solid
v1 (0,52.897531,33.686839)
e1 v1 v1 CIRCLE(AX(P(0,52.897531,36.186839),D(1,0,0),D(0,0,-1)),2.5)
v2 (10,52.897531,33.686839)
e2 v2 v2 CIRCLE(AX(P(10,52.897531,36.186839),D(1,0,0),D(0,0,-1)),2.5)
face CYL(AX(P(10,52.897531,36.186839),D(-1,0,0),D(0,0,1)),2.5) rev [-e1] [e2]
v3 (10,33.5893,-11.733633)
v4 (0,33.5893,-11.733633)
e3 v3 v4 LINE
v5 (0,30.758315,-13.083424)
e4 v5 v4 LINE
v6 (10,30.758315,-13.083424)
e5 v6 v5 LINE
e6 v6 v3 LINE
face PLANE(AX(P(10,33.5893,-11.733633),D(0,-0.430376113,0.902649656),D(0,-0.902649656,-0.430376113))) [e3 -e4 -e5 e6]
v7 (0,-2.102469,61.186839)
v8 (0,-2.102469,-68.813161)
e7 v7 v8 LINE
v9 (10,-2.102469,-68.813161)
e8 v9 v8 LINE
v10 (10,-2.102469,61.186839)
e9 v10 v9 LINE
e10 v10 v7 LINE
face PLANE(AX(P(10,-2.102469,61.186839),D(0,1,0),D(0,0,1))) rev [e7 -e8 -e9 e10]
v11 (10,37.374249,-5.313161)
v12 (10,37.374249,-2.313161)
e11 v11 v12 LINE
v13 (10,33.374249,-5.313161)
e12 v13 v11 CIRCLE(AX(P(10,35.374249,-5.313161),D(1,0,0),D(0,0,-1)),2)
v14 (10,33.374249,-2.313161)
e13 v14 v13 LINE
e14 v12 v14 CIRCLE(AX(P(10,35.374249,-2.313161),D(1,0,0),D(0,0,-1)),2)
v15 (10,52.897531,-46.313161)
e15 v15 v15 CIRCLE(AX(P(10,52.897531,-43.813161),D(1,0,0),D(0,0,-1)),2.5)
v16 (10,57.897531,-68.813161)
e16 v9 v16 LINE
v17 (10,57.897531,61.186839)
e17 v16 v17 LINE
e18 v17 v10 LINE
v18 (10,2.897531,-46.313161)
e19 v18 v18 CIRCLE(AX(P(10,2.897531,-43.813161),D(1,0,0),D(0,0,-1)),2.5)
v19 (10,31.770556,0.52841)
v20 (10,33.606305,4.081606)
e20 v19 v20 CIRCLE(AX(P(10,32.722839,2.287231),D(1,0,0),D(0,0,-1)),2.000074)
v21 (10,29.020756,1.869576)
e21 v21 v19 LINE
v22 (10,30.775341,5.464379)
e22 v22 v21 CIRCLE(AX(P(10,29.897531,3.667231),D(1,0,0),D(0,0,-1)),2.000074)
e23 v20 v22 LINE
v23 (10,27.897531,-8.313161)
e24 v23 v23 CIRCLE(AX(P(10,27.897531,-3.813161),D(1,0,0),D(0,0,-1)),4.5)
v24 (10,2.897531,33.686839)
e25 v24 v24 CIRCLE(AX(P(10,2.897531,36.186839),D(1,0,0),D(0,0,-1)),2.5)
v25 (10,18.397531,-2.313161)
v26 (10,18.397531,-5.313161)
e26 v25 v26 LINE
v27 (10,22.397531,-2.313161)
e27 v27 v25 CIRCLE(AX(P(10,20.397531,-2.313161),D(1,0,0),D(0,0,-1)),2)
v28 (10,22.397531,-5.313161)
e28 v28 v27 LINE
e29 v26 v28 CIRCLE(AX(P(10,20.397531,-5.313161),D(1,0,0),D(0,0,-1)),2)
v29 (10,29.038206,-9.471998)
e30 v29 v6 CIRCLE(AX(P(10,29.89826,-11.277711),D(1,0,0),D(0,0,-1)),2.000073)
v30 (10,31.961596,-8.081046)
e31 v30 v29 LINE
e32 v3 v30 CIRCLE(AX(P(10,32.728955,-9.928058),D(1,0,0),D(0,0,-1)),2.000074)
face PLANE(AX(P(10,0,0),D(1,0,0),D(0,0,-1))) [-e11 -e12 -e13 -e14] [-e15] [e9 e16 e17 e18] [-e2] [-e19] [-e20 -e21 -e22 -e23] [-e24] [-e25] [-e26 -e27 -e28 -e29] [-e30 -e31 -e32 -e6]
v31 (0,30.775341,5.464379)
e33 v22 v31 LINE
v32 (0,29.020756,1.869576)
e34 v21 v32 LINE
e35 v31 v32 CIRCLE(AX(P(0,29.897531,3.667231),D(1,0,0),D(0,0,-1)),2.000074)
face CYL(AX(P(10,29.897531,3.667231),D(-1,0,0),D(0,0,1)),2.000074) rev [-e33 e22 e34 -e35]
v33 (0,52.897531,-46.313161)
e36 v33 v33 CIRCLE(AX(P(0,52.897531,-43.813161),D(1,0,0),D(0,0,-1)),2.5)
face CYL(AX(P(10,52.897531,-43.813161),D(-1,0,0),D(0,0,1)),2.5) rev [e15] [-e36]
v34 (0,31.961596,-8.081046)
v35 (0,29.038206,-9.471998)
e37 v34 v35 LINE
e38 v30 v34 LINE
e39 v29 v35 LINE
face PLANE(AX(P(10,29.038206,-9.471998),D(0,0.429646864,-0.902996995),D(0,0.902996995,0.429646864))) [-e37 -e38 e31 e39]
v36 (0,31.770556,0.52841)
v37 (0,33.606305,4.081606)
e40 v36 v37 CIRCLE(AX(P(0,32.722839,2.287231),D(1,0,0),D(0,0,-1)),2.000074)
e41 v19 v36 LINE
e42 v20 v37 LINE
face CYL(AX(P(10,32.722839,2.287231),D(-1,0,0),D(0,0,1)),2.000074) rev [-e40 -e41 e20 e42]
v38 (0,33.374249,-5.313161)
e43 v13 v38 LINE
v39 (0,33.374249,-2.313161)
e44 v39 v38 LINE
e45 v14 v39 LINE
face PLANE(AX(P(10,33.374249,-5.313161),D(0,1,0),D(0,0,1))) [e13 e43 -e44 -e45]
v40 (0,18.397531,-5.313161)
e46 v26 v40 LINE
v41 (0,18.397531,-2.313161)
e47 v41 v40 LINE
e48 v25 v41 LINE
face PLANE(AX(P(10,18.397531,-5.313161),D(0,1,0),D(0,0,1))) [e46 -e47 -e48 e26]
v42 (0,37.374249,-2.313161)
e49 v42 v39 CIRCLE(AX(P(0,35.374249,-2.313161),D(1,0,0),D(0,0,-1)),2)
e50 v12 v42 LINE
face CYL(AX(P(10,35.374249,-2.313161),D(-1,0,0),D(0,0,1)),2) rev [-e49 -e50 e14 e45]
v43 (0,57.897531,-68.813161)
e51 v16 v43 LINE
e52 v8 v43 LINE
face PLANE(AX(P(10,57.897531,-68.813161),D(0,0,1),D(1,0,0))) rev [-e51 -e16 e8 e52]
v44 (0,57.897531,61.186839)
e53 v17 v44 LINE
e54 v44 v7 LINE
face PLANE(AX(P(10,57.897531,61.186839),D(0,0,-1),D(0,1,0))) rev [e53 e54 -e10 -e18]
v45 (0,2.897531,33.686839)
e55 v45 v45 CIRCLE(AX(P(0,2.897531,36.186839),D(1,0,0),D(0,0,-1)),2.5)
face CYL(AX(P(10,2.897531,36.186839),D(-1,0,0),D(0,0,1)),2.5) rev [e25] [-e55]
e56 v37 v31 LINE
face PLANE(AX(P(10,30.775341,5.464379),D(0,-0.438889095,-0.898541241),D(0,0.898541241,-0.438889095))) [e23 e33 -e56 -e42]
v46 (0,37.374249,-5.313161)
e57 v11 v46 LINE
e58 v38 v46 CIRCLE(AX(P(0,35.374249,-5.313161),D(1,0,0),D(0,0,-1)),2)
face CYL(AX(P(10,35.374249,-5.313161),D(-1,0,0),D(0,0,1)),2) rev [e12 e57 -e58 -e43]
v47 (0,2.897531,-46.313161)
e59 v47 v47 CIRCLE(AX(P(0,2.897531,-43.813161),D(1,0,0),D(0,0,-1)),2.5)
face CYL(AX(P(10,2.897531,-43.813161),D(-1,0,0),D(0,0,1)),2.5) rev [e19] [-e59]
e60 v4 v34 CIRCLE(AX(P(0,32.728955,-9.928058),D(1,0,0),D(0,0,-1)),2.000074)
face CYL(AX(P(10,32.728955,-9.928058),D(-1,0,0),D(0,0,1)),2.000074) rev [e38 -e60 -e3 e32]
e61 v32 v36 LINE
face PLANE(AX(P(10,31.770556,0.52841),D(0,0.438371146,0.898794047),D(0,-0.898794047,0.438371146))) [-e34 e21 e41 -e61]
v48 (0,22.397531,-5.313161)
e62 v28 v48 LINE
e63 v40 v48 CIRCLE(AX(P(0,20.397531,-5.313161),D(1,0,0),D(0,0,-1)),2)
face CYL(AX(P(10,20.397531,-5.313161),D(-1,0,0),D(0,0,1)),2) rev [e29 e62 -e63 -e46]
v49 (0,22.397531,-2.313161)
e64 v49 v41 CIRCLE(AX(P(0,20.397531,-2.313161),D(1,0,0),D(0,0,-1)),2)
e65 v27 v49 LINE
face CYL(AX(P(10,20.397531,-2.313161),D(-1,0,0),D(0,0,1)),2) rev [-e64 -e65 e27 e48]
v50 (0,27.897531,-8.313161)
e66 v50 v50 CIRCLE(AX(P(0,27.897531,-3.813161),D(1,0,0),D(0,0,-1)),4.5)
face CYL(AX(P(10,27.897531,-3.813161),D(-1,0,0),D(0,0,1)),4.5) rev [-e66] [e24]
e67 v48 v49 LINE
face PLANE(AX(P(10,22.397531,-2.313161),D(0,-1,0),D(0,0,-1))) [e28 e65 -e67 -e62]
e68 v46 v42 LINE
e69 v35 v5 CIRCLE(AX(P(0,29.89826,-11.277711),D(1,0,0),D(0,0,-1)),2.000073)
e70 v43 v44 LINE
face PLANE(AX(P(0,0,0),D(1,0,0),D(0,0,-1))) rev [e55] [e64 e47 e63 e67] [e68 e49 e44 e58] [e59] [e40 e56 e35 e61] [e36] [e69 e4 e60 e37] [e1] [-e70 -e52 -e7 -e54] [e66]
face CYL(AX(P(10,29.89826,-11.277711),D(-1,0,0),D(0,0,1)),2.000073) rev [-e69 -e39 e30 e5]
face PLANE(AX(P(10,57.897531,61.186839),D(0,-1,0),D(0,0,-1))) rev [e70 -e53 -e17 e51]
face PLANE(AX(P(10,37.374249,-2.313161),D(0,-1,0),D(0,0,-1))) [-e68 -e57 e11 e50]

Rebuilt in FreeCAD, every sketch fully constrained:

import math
import FreeCAD as App
import Part
import Sketcher
Q = App.Units.Quantity

doc = App.newDocument("Part")
body = doc.addObject("PartDesign::Body", "Body")

# Sketch on YZ plane
sketch1 = body.newObject("Sketcher::SketchObject", "Sketch")
sketch1.AttachmentSupport = (doc.getObject("YZ_Plane"), [""])
sketch1.MapMode = "FlatFace"
sketch1.addGeometry([
    Part.LineSegment(App.Vector(57.9, 61.2, 0), App.Vector(-2.1, 61.2, 0)),  # 0
    Part.LineSegment(App.Vector(-2.1, 61.2, 0), App.Vector(-2.1, -68.8, 0)),  # 1
    Part.LineSegment(App.Vector(-2.1, -68.8, 0), App.Vector(57.9, -68.8, 0)),  # 2
    Part.LineSegment(App.Vector(57.9, -68.8, 0), App.Vector(57.9, 61.2, 0)),  # 3
    Part.Circle(App.Vector(2.9, 36.2, 0), App.Vector(0, 0, 1), 2.5),  # 4
    Part.ArcOfCircle(Part.Circle(App.Vector(20.4, -5.3, 0), App.Vector(0, 0, 1), 2), math.radians(-180), math.radians(0)),  # 5
    Part.LineSegment(App.Vector(18.4, -5.3, 0), App.Vector(18.4, -2.3, 0)),  # 6
    Part.ArcOfCircle(Part.Circle(App.Vector(20.4, -2.3, 0), App.Vector(0, 0, 1), 2), math.radians(0), math.radians(180)),  # 7
    Part.LineSegment(App.Vector(22.4, -2.3, 0), App.Vector(22.4, -5.3, 0)),  # 8
    Part.Circle(App.Vector(2.9, -43.8, 0), App.Vector(0, 0, 1), 2.5),  # 9
    Part.ArcOfCircle(Part.Circle(App.Vector(29.9, 3.7, 0), App.Vector(0, 0, 1), 2), math.radians(64), math.radians(244)),  # 10
    Part.LineSegment(App.Vector(30.8, 5.5, 0), App.Vector(33.6, 4.1, 0)),  # 11
    Part.ArcOfCircle(Part.Circle(App.Vector(32.7, 2.3, 0), App.Vector(0, 0, 1), 2), math.radians(-118), math.radians(64)),  # 12
    Part.LineSegment(App.Vector(31.8, 0.5, 0), App.Vector(29, 1.9, 0)),  # 13
    Part.ArcOfCircle(Part.Circle(App.Vector(35.4, -5.3, 0), App.Vector(0, 0, 1), 2), math.radians(180), math.radians(360)),  # 14
    Part.LineSegment(App.Vector(33.4, -5.3, 0), App.Vector(33.4, -2.3, 0)),  # 15
    Part.ArcOfCircle(Part.Circle(App.Vector(35.4, -2.3, 0), App.Vector(0, 0, 1), 2), math.radians(0), math.radians(180)),  # 16
    Part.LineSegment(App.Vector(37.4, -2.3, 0), App.Vector(37.4, -5.3, 0)),  # 17
    Part.Circle(App.Vector(52.9, 36.2, 0), App.Vector(0, 0, 1), 2.5),  # 18
    Part.Circle(App.Vector(27.9, -3.8, 0), App.Vector(0, 0, 1), 4.5),  # 19
    Part.ArcOfCircle(Part.Circle(App.Vector(29.9, -11.3, 0), App.Vector(0, 0, 1), 2), math.radians(115), math.radians(295)),  # 20
    Part.LineSegment(App.Vector(29, -9.5, 0), App.Vector(32, -8.1, 0)),  # 21
    Part.ArcOfCircle(Part.Circle(App.Vector(32.7, -9.9, 0), App.Vector(0, 0, 1), 2), math.radians(-65), math.radians(113)),  # 22
    Part.LineSegment(App.Vector(33.6, -11.7, 0), App.Vector(30.8, -13.1, 0)),  # 23
    Part.Circle(App.Vector(52.9, -43.8, 0), App.Vector(0, 0, 1), 2.5),  # 24
], False)
sketch1.addConstraint([
    Sketcher.Constraint("Coincident", 0, 2, 1, 1),
    Sketcher.Constraint("Coincident", 1, 2, 2, 1),
    Sketcher.Constraint("Coincident", 2, 2, 3, 1),
    Sketcher.Constraint("Coincident", 3, 2, 0, 1),
    Sketcher.Constraint("Tangent", 5, 1, 6, 1),
    Sketcher.Constraint("Tangent", 6, 2, 7, 2),
    Sketcher.Constraint("Tangent", 7, 1, 8, 1),
    Sketcher.Constraint("Tangent", 8, 2, 5, 2),
    Sketcher.Constraint("Tangent", 10, 1, 11, 1),
    Sketcher.Constraint("Coincident", 11, 2, 12, 2),
    Sketcher.Constraint("Coincident", 12, 1, 13, 1),
    Sketcher.Constraint("Tangent", 13, 2, 10, 2),
    Sketcher.Constraint("Tangent", 14, 1, 15, 1),
    Sketcher.Constraint("Tangent", 15, 2, 16, 2),
    Sketcher.Constraint("Tangent", 16, 1, 17, 1),
    Sketcher.Constraint("Tangent", 17, 2, 14, 2),
    Sketcher.Constraint("Coincident", 20, 1, 21, 1),
    Sketcher.Constraint("Coincident", 21, 2, 22, 2),
    Sketcher.Constraint("Coincident", 22, 1, 23, 1),
    Sketcher.Constraint("Coincident", 23, 2, 20, 2),
    Sketcher.Constraint("Horizontal", 0),
    Sketcher.Constraint("Vertical", 1),
    Sketcher.Constraint("Horizontal", 2),
    Sketcher.Constraint("Vertical", 3),
    Sketcher.Constraint("Vertical", 6),
    Sketcher.Constraint("Vertical", 8),
    Sketcher.Constraint("Vertical", 15),
    Sketcher.Constraint("Vertical", 17),
    Sketcher.Constraint("Equal", 4, 9),
    Sketcher.Constraint("Equal", 10, 12),
    Sketcher.Constraint("Equal", 7, 14),
    Sketcher.Constraint("Equal", 9, 18),
    Sketcher.Constraint("Equal", 12, 20),
    Sketcher.Constraint("Equal", 20, 22),
    Sketcher.Constraint("Equal", 18, 24),
    Sketcher.Constraint("Horizontal", 5, 3, 14, 3),
    Sketcher.Constraint("Horizontal", 7, 3, 16, 3),
    Sketcher.Constraint("Horizontal", 4, 3, 18, 3),
    Sketcher.Constraint("Horizontal", 9, 3, 24, 3),
    Sketcher.Constraint("Vertical", 4, 3, 9, 3),
    Sketcher.Constraint("Vertical", 18, 3, 24, 3),
    Sketcher.Constraint("Diameter", 4, Q("5 mm")),
    Sketcher.Constraint("Diameter", 19, Q("9 mm")),
    Sketcher.Constraint("Radius", 5, Q("2 mm")),
    Sketcher.Constraint("DistanceX", 0, 2, 0, 1, Q("60 mm")),
    Sketcher.Constraint("DistanceY", 1, 2, 1, 1, Q("130 mm")),
    Sketcher.Constraint("DistanceY", 6, 1, 6, 2, Q("3 mm")),
    Sketcher.Constraint("Angle", 13, Q("154 deg")),
    Sketcher.Constraint("DistanceY", 9, 3, 4, 3, Q("80 mm")),
    Sketcher.Constraint("DistanceX", 4, 3, 10, 3, Q("27 mm")),
    Sketcher.Constraint("DistanceX", 10, 3, 18, 3, Q("23 mm")),
    Sketcher.Constraint("DistanceX", 19, 3, 10, 3, Q("2 mm")),
    Sketcher.Constraint("DistanceY", 24, 3, 19, 3, Q("40 mm")),
    Sketcher.Constraint("DistanceX", 0, 2, 4, 3, Q("5 mm")),
    Sketcher.Constraint("DistanceY", 4, 3, 0, 2, Q("25 mm")),
    Sketcher.Constraint("DistanceX", 4, 3, 5, 3, Q("17.5 mm")),
    Sketcher.Constraint("DistanceY", 5, 3, 4, 3, Q("41.5 mm")),
    Sketcher.Constraint("DistanceY", 12, 3, 10, 3, Q("1.38 mm")),
    Sketcher.Constraint("Radius", 10, Q("2.000074 mm")),
    Sketcher.Constraint("DistanceX", -1, 1, 22, 1, Q("33.5893 mm")),
    Sketcher.Constraint("DistanceX", 13, 2, 12, 1, Q("2.7498 mm")),
    Sketcher.Constraint("Distance", 11, Q("3.150622 mm")),
    Sketcher.Constraint("Distance", 21, Q("3.237431 mm")),
    Sketcher.Constraint("DistanceX", -1, 1, 4, 3, Q("2.897531 mm")),
    Sketcher.Constraint("DistanceY", -1, 1, 4, 3, Q("36.186839 mm")),
    Sketcher.Constraint("DistanceY", -1, 1, 10, 3, Q("3.667231 mm")),
    Sketcher.Constraint("DistanceX", -1, 1, 14, 3, Q("35.374249 mm")),
    Sketcher.Constraint("DistanceX", -1, 1, 20, 3, Q("29.89826 mm")),
    Sketcher.Constraint("DistanceY", 20, 3, -1, 1, Q("11.277711 mm")),
    Sketcher.Constraint("DistanceY", 22, 3, -1, 1, Q("9.928058 mm")),
    Sketcher.Constraint("DistanceX", 20, 1, 22, 3, Q("3.690749 mm")),
    Sketcher.Constraint("DistanceY", 22, 3, 20, 1, Q("0.45606 mm")),
    Sketcher.Constraint("DistanceY", 23, 2, 22, 1, Q("1.349791 mm")),
])
pad1 = body.newObject("PartDesign::Pad", "Pad")
pad1.Profile = sketch1
pad1.Length = 10

doc.recompute()
